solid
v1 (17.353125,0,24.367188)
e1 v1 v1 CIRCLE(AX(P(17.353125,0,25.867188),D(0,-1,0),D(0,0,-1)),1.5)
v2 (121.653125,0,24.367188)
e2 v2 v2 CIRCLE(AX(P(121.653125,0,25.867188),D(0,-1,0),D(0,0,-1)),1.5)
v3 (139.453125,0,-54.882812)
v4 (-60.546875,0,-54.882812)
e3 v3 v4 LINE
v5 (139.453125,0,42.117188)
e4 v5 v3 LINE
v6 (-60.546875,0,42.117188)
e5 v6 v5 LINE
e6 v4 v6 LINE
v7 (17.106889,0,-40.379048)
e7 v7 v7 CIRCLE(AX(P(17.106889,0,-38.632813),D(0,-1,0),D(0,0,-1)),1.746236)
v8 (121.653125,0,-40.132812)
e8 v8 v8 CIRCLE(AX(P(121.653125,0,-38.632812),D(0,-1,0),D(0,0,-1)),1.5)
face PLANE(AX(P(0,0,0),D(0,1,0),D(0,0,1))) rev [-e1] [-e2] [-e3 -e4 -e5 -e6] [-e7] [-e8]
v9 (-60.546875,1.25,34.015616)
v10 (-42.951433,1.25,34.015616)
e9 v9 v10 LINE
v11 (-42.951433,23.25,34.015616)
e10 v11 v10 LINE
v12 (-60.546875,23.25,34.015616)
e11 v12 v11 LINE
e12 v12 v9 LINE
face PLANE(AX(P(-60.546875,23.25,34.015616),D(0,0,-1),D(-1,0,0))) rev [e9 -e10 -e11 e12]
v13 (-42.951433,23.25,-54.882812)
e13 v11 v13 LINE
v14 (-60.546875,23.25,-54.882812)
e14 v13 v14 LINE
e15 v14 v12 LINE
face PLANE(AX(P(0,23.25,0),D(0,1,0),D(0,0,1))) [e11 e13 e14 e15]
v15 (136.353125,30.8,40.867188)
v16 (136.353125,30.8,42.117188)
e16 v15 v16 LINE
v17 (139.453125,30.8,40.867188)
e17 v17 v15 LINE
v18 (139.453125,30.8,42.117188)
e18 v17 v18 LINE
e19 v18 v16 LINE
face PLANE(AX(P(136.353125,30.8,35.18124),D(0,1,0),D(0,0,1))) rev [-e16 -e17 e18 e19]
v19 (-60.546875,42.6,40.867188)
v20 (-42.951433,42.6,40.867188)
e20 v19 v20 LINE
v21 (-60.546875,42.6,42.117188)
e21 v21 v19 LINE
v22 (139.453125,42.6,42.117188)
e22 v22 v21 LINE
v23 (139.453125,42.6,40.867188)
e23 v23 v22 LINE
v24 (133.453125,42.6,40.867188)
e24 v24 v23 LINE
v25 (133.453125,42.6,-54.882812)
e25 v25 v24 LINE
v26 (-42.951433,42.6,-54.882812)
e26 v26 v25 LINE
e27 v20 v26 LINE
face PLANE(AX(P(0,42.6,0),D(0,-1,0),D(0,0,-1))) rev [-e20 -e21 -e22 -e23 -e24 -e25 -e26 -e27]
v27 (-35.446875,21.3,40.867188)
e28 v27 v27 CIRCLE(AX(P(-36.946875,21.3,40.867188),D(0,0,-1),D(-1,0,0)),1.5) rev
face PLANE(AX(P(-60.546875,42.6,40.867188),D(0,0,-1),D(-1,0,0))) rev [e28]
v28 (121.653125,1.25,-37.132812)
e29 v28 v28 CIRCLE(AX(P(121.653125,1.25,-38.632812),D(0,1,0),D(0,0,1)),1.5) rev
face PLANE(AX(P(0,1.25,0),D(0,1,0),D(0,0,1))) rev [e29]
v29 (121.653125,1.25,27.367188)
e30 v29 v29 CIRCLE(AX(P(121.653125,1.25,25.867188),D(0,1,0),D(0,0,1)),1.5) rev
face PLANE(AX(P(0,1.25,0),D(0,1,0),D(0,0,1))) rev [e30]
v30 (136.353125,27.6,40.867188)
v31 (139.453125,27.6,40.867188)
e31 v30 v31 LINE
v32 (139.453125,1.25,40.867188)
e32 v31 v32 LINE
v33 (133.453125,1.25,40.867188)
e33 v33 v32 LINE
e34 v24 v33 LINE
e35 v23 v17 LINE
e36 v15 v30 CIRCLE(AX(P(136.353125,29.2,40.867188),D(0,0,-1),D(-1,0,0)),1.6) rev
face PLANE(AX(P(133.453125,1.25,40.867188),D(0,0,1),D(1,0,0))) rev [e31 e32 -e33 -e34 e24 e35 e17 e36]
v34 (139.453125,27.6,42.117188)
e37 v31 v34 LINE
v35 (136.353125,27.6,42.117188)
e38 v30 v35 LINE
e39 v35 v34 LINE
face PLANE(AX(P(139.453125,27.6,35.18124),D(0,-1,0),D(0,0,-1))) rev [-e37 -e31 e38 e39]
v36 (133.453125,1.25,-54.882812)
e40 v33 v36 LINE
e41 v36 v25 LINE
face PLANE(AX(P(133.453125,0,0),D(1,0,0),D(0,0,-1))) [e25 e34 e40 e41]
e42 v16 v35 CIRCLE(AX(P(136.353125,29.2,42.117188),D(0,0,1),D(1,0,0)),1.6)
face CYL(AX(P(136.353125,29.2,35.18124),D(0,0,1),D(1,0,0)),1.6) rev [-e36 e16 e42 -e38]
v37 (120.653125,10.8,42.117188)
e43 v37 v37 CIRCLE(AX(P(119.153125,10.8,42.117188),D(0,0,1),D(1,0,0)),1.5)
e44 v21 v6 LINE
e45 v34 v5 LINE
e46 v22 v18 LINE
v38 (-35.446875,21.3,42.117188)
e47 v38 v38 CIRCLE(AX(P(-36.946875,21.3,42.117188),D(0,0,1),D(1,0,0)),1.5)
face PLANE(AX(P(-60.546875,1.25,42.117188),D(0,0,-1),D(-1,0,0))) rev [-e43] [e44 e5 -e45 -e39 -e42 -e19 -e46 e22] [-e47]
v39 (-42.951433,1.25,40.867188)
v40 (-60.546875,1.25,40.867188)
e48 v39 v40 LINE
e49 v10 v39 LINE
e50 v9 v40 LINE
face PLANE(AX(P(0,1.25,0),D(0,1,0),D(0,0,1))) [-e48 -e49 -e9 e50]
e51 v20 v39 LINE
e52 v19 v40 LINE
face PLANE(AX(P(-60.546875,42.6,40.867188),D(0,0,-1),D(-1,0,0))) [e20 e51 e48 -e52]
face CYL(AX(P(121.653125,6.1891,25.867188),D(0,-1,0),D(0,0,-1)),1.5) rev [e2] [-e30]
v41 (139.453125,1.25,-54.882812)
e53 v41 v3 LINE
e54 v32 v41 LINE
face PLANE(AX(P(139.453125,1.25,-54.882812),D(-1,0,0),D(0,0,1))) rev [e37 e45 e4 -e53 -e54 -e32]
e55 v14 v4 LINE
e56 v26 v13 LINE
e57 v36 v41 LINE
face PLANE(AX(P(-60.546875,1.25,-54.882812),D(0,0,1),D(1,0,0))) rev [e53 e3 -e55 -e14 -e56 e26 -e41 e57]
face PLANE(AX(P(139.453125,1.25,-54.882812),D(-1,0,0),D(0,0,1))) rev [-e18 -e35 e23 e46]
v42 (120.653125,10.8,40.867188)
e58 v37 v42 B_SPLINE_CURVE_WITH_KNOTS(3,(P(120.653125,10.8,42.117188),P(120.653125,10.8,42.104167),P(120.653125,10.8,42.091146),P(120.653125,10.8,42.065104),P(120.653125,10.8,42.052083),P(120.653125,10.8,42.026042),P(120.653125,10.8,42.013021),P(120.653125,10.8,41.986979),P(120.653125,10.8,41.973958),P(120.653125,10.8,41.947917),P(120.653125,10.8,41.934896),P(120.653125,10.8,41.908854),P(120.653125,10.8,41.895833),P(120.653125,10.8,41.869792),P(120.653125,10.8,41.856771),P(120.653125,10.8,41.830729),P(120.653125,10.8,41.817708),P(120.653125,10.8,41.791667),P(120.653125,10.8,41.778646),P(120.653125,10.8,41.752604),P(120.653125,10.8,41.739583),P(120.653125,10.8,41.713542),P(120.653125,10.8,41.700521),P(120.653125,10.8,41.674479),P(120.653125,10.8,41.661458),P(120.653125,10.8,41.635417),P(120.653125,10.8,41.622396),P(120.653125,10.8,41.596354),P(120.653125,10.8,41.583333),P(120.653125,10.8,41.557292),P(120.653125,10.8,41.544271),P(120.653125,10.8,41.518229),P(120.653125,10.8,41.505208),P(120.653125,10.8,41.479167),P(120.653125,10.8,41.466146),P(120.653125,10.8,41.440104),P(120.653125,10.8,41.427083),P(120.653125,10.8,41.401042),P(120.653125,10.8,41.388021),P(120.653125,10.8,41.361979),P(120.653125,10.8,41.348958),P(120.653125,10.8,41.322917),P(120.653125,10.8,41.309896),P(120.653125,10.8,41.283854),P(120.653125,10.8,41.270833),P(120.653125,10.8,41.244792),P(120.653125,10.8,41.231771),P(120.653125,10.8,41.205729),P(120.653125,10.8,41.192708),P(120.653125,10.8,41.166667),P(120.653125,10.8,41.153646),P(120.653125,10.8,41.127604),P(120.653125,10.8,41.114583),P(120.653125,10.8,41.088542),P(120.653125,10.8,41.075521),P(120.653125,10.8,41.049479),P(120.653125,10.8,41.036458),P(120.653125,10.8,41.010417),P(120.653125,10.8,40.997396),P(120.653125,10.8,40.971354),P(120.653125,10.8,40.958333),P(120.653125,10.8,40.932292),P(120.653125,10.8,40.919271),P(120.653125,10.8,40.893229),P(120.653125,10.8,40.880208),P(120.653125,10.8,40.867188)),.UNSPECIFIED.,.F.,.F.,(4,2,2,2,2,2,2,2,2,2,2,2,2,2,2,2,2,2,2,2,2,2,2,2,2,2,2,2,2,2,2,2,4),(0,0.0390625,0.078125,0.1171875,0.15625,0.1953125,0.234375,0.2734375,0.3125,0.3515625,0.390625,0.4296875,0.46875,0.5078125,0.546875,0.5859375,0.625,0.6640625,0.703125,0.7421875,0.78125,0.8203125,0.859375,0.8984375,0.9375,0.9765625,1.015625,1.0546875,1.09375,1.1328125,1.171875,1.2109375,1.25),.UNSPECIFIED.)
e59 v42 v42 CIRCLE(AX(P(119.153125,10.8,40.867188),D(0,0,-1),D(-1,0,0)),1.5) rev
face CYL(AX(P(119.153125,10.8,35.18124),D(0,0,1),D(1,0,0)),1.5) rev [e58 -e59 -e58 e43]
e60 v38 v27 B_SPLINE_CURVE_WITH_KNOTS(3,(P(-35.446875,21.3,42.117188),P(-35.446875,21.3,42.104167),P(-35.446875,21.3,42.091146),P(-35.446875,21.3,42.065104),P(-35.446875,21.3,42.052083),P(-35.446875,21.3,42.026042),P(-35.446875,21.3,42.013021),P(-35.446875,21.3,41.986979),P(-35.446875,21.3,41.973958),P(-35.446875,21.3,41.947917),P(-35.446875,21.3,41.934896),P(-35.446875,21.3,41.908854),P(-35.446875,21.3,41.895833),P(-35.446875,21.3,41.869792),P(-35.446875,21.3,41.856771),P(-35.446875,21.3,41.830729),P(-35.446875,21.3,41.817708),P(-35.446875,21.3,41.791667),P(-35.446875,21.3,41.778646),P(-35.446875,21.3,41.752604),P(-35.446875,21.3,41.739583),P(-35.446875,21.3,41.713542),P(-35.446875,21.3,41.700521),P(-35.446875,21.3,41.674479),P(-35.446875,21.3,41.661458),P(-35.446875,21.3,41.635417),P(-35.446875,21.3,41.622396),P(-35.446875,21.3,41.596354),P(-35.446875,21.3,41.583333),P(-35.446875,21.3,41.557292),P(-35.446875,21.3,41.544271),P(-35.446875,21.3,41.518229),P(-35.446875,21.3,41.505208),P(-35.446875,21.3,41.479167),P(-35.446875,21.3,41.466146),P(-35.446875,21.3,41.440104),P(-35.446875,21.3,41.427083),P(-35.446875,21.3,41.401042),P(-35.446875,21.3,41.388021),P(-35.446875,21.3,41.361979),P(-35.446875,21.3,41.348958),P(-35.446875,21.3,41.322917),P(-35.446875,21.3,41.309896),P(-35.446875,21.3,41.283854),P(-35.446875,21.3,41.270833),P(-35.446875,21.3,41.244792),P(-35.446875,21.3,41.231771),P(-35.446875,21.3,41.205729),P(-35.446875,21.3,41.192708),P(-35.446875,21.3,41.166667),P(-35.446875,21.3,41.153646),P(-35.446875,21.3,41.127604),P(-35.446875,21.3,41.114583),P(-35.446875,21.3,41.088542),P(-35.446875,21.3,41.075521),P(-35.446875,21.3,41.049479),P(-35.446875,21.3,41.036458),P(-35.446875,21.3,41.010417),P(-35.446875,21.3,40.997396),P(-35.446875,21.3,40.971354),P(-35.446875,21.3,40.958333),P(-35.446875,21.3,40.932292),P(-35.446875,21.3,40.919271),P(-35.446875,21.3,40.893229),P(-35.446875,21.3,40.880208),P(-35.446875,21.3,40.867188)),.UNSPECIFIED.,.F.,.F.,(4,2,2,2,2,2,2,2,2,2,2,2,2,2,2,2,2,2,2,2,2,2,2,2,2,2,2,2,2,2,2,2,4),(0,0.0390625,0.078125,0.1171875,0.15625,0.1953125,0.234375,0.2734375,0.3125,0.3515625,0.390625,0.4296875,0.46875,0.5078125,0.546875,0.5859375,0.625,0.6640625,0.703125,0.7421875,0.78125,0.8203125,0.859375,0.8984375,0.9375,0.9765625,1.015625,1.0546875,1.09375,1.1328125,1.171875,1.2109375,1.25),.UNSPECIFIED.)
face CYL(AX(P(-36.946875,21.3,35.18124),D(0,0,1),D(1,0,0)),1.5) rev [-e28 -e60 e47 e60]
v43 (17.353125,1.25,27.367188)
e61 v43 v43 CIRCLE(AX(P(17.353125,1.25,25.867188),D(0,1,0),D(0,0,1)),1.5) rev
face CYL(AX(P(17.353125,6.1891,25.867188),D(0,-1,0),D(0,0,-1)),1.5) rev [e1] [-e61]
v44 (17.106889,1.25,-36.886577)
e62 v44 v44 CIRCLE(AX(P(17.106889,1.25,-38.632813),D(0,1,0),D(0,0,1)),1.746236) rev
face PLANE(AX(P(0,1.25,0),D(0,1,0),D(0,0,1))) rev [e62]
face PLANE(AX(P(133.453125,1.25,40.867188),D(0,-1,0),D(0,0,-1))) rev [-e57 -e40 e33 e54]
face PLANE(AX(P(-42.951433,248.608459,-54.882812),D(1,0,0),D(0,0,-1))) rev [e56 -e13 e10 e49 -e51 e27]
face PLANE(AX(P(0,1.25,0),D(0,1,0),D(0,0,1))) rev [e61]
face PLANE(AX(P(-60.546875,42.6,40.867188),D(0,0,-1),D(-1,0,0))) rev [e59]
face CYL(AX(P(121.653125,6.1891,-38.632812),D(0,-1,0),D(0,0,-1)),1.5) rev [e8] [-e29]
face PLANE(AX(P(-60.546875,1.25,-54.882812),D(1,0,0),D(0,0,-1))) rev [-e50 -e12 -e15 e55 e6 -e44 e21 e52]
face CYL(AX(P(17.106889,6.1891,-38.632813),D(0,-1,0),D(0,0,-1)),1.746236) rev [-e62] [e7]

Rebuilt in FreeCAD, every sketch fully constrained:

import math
import FreeCAD as App
import Part
import Sketcher
from FreeCAD import Vector
Q = App.Units.Quantity


def add_polygon(sketch, points):
    """Adds a closed chain of lines whose ends are joined by coincident constraints."""
    first, n = sketch.GeometryCount, len(points)
    for a, b in zip(points, points[1:] + points[:1]):
        sketch.addGeometry(Part.LineSegment(App.Vector(*a, 0), App.Vector(*b, 0)), False)
    for i in range(n):
        sketch.addConstraint(Sketcher.Constraint("Coincident", first + i, 2, first + (i + 1) % n, 1))

doc = App.newDocument("Part")
params = doc.addObject("Spreadsheet::Sheet", "Params")
for row, (alias, value) in enumerate([
    ("sketch1_width", "200 mm"),
    ("sketch1_height", "97 mm"),
    ("pad1_length", "1.25 mm"),
    ("sketch2_width", "200 mm"),
    ("sketch2_height", "1.25 mm"),
    ("pad2_length", "42.6 mm"),
    ("sketch3_diameter", "3 mm"),
    ("pocket1_length", "1.25 mm"),
    ("sketch4_height", "95.75 mm"),
    ("pad3_length", "41.35 mm"),
    ("pad4_length", "22 mm"),
    ("sketch6_diameter", "3 mm"),
    ("sketch6_radius", "1.6 mm"),
    ("sketch6_width", "3.1 mm"),
    ("pocket2_length", "1.25 mm"),
    ("sketch7_width", "41.35 mm"),
    ("sketch7_height", "95.75 mm"),
    ("pocket3_length", "6 mm"),
], start=1):
    params.set(f"A{row}", alias)
    params.set(f"B{row}", "=" + value)
    params.setAlias(f"B{row}", alias)

body = doc.addObject("PartDesign::Body", "Body")

sketch1 = body.newObject("Sketcher::SketchObject", "Sketch")
sketch1.AttachmentSupport = (doc.getObject("XZ_Plane"), [""])
sketch1.MapMode = "FlatFace"
add_polygon(sketch1, [(-61, -55), (-61, 42), (139, 42), (139, -55)])
sketch1.addConstraint([
    Sketcher.Constraint("Vertical", 0),
    Sketcher.Constraint("Horizontal", 1),
    Sketcher.Constraint("Vertical", 2),
    Sketcher.Constraint("Horizontal", 3),
    Sketcher.Constraint("DistanceX", 1, 1, 1, 2, Q("200 mm")),
    Sketcher.Constraint("DistanceY", 0, 1, 0, 2, Q("97 mm")),
    Sketcher.Constraint("DistanceX", 0, 2, -1, 1, Q("60.546875 mm")),
    Sketcher.Constraint("DistanceY", -1, 1, 0, 2, Q("42.117188 mm")),
])
sketch1.setExpression("Constraints[8]", "Params.sketch1_width")
sketch1.setExpression("Constraints[9]", "Params.sketch1_height")
pad1 = body.newObject("PartDesign::Pad", "Pad")
pad1.Profile = sketch1
pad1.setExpression("Length", "Params.pad1_length")
pad1.Reversed = True

sketch2 = body.newObject("Sketcher::SketchObject", "Sketch001")
sketch2.AttachmentSupport = (doc.getObject("XZ_Plane"), [""])
sketch2.MapMode = "FlatFace"
add_polygon(sketch2, [(-60.5, 42.1), (-60.5, 40.9), (139.5, 40.9), (139.5, 42.1)])
sketch2.addConstraint([
    Sketcher.Constraint("Vertical", 0),
    Sketcher.Constraint("Horizontal", 1),
    Sketcher.Constraint("Vertical", 2),
    Sketcher.Constraint("Horizontal", 3),
    Sketcher.Constraint("DistanceX", 1, 1, 1, 2, Q("200 mm")),
    Sketcher.Constraint("DistanceY", 0, 2, 0, 1, Q("1.25 mm")),
    Sketcher.Constraint("DistanceX", 0, 2, -1, 1, Q("60.546875 mm")),
    Sketcher.Constraint("DistanceY", -1, 1, 0, 2, Q("40.867188 mm")),
])
sketch2.setExpression("Constraints[8]", "Params.sketch2_width")
sketch2.setExpression("Constraints[9]", "Params.sketch2_height")
pad2 = body.newObject("PartDesign::Pad", "Pad001")
pad2.Profile = sketch2
pad2.setExpression("Length", "Params.pad2_length")
pad2.Reversed = True

sketch3 = body.newObject("Sketcher::SketchObject", "Sketch002")
sketch3.AttachmentSupport = (doc.getObject("XZ_Plane"), [""])
sketch3.MapMode = "FlatFace"
sketch3.addGeometry([
    Part.Circle(Vector(121.7, -38.6, 0), Vector(0, 0, 1), 1.5),
    Part.Circle(Vector(121.7, 25.9, 0), Vector(0, 0, 1), 1.5),
    Part.Circle(Vector(17.1, -38.6, 0), Vector(0, 0, 1), 1.7),
    Part.Circle(Vector(17.4, 25.9, 0), Vector(0, 0, 1), 1.5),
], False)
sketch3.addConstraint([
    Sketcher.Constraint("Equal", 0, 1),
    Sketcher.Constraint("Equal", 1, 3),
    Sketcher.Constraint("Horizontal", 0, 3, 2, 3),
    Sketcher.Constraint("Horizontal", 1, 3, 3, 3),
    Sketcher.Constraint("Vertical", 0, 3, 1, 3),
    Sketcher.Constraint("Diameter", 0, Q("3 mm")),
    Sketcher.Constraint("DistanceY", 0, 3, 1, 3, Q("64.5 mm")),
    Sketcher.Constraint("DistanceX", 3, 3, 1, 3, Q("104.3 mm")),
    Sketcher.Constraint("Diameter", 2, Q("3.492471 mm")),
    Sketcher.Constraint("DistanceX", -1, 1, 2, 3, Q("17.106889 mm")),
    Sketcher.Constraint("DistanceX", -1, 1, 0, 3, Q("121.653125 mm")),
    Sketcher.Constraint("DistanceY", 0, 3, -1, 1, Q("38.632812 mm")),
])
sketch3.setExpression("Constraints[5]", "Params.sketch3_diameter")
pocket1 = body.newObject("PartDesign::Pocket", "Pocket")
pocket1.Profile = sketch3
pocket1.setExpression("Length", "Params.pocket1_length")

sketch4 = body.newObject("Sketcher::SketchObject", "Sketch003")
sketch4.AttachmentSupport = (doc.getObject("XZ_Plane"), [""])
sketch4.MapMode = "FlatFace"
sketch4.AttachmentOffset = App.Placement(Vector(0, 0, -1.25), App.Rotation())
add_polygon(sketch4, [(-43, -55), (-43, 41), (139, 41), (139, -55)])
sketch4.addConstraint([
    Sketcher.Constraint("Vertical", 0),
    Sketcher.Constraint("Horizontal", 1),
    Sketcher.Constraint("Vertical", 2),
    Sketcher.Constraint("Horizontal", 3),
    Sketcher.Constraint("DistanceY", 0, 1, 0, 2, Q("95.75 mm")),
    Sketcher.Constraint("DistanceX", 1, 1, 1, 2, Q("182.404558 mm")),
    Sketcher.Constraint("DistanceX", 0, 2, -1, 1, Q("42.951433 mm")),
    Sketcher.Constraint("DistanceY", -1, 1, 0, 2, Q("40.867188 mm")),
])
sketch4.setExpression("Constraints[8]", "Params.sketch4_height")
pad3 = body.newObject("PartDesign::Pad", "Pad002")
pad3.Profile = sketch4
pad3.setExpression("Length", "Params.pad3_length")
pad3.Reversed = True

sketch5 = body.newObject("Sketcher::SketchObject", "Sketch004")
sketch5.AttachmentSupport = (doc.getObject("XZ_Plane"), [""])
sketch5.MapMode = "FlatFace"
sketch5.AttachmentOffset = App.Placement(Vector(0, 0, -1.25), App.Rotation())
add_polygon(sketch5, [(-61, -55), (-61, 34), (-43, 34), (-43, -55)])
sketch5.addConstraint([
    Sketcher.Constraint("Vertical", 0),
    Sketcher.Constraint("Horizontal", 1),
    Sketcher.Constraint("Vertical", 2),
    Sketcher.Constraint("Horizontal", 3),
    Sketcher.Constraint("DistanceY", 0, 1, 0, 2, Q("88.898428 mm")),
    Sketcher.Constraint("DistanceX", 1, 1, 1, 2, Q("17.595442 mm")),
    Sketcher.Constraint("DistanceX", 0, 2, -1, 1, Q("60.546875 mm")),
    Sketcher.Constraint("DistanceY", -1, 1, 0, 2, Q("34.015616 mm")),
])
pad4 = body.newObject("PartDesign::Pad", "Pad003")
pad4.Profile = sketch5
pad4.setExpression("Length", "Params.pad4_length")
pad4.Reversed = True

sketch6 = body.newObject("Sketcher::SketchObject", "Sketch005")
sketch6.AttachmentSupport = (doc.getObject("XY_Plane"), [""])
sketch6.MapMode = "FlatFace"
sketch6.AttachmentOffset = App.Placement(Vector(0, 0, 42.117188), App.Rotation())
sketch6.addGeometry([
    Part.Circle(Vector(119.2, 10.8, 0), Vector(0, 0, 1), 1.5),
    Part.Circle(Vector(-36.9, 21.3, 0), Vector(0, 0, 1), 1.5),
    Part.LineSegment(Vector(139.5, 30.8, 0), Vector(136.4, 30.8, 0)),
    Part.ArcOfCircle(Part.Circle(Vector(136.4, 29.2, 0), Vector(0, 0, 1), 1.6), math.radians(90), math.radians(270)),
    Part.LineSegment(Vector(136.4, 27.6, 0), Vector(139.5, 27.6, 0)),
    Part.LineSegment(Vector(139.5, 27.6, 0), Vector(139.5, 30.8, 0)),
], False)
sketch6.addConstraint([
    Sketcher.Constraint("Tangent", 2, 2, 3, 1),
    Sketcher.Constraint("Tangent", 3, 2, 4, 1),
    Sketcher.Constraint("Coincident", 4, 2, 5, 1),
    Sketcher.Constraint("Coincident", 5, 2, 2, 1),
    Sketcher.Constraint("Horizontal", 2),
    Sketcher.Constraint("Horizontal", 4),
    Sketcher.Constraint("Vertical", 5),
    Sketcher.Constraint("Equal", 0, 1),
    Sketcher.Constraint("Diameter", 0, Q("3 mm")),
    Sketcher.Constraint("Radius", 3, Q("1.6 mm")),
    Sketcher.Constraint("DistanceX", 2, 2, 2, 1, Q("3.1 mm")),
    Sketcher.Constraint("DistanceY", 0, 3, 2, 2, Q("20 mm")),
    Sketcher.Constraint("DistanceY", -1, 1, 0, 3, Q("10.8 mm")),
    Sketcher.Constraint("DistanceY", -1, 1, 1, 3, Q("21.3 mm")),
    Sketcher.Constraint("DistanceX", 1, 3, 0, 3, Q("156.1 mm")),
    Sketcher.Constraint("DistanceX", 0, 3, 3, 3, Q("17.2 mm")),
    Sketcher.Constraint("DistanceX", -1, 1, 0, 3, Q("119.153125 mm")),
])
sketch6.setExpression("Constraints[8]", "Params.sketch6_diameter")
sketch6.setExpression("Constraints[9]", "Params.sketch6_radius")
sketch6.setExpression("Constraints[10]", "Params.sketch6_width")
pocket2 = body.newObject("PartDesign::Pocket", "Pocket001")
pocket2.Profile = sketch6
pocket2.setExpression("Length", "Params.pocket2_length")

sketch7 = body.newObject("Sketcher::SketchObject", "Sketch006")
sketch7.AttachmentSupport = (doc.getObject("YZ_Plane"), [""])
sketch7.MapMode = "FlatFace"
sketch7.AttachmentOffset = App.Placement(Vector(0, 0, 139.453125), App.Rotation())
add_polygon(sketch7, [(43, 41), (1, 41), (1, -55), (43, -55)])
sketch7.addConstraint([
    Sketcher.Constraint("Horizontal", 0),
    Sketcher.Constraint("Vertical", 1),
    Sketcher.Constraint("Horizontal", 2),
    Sketcher.Constraint("Vertical", 3),
    Sketcher.Constraint("DistanceX", 0, 2, 0, 1, Q("41.35 mm")),
    Sketcher.Constraint("DistanceY", 1, 2, 1, 1, Q("95.75 mm")),
    Sketcher.Constraint("DistanceX", -1, 1, 2, 2, Q("42.6 mm")),
    Sketcher.Constraint("DistanceY", -1, 1, 0, 2, Q("40.867188 mm")),
])
sketch7.setExpression("Constraints[8]", "Params.sketch7_width")
sketch7.setExpression("Constraints[9]", "Params.sketch7_height")
pocket3 = body.newObject("PartDesign::Pocket", "Pocket002")
pocket3.Profile = sketch7
pocket3.setExpression("Length", "Params.pocket3_length")

doc.recompute()
